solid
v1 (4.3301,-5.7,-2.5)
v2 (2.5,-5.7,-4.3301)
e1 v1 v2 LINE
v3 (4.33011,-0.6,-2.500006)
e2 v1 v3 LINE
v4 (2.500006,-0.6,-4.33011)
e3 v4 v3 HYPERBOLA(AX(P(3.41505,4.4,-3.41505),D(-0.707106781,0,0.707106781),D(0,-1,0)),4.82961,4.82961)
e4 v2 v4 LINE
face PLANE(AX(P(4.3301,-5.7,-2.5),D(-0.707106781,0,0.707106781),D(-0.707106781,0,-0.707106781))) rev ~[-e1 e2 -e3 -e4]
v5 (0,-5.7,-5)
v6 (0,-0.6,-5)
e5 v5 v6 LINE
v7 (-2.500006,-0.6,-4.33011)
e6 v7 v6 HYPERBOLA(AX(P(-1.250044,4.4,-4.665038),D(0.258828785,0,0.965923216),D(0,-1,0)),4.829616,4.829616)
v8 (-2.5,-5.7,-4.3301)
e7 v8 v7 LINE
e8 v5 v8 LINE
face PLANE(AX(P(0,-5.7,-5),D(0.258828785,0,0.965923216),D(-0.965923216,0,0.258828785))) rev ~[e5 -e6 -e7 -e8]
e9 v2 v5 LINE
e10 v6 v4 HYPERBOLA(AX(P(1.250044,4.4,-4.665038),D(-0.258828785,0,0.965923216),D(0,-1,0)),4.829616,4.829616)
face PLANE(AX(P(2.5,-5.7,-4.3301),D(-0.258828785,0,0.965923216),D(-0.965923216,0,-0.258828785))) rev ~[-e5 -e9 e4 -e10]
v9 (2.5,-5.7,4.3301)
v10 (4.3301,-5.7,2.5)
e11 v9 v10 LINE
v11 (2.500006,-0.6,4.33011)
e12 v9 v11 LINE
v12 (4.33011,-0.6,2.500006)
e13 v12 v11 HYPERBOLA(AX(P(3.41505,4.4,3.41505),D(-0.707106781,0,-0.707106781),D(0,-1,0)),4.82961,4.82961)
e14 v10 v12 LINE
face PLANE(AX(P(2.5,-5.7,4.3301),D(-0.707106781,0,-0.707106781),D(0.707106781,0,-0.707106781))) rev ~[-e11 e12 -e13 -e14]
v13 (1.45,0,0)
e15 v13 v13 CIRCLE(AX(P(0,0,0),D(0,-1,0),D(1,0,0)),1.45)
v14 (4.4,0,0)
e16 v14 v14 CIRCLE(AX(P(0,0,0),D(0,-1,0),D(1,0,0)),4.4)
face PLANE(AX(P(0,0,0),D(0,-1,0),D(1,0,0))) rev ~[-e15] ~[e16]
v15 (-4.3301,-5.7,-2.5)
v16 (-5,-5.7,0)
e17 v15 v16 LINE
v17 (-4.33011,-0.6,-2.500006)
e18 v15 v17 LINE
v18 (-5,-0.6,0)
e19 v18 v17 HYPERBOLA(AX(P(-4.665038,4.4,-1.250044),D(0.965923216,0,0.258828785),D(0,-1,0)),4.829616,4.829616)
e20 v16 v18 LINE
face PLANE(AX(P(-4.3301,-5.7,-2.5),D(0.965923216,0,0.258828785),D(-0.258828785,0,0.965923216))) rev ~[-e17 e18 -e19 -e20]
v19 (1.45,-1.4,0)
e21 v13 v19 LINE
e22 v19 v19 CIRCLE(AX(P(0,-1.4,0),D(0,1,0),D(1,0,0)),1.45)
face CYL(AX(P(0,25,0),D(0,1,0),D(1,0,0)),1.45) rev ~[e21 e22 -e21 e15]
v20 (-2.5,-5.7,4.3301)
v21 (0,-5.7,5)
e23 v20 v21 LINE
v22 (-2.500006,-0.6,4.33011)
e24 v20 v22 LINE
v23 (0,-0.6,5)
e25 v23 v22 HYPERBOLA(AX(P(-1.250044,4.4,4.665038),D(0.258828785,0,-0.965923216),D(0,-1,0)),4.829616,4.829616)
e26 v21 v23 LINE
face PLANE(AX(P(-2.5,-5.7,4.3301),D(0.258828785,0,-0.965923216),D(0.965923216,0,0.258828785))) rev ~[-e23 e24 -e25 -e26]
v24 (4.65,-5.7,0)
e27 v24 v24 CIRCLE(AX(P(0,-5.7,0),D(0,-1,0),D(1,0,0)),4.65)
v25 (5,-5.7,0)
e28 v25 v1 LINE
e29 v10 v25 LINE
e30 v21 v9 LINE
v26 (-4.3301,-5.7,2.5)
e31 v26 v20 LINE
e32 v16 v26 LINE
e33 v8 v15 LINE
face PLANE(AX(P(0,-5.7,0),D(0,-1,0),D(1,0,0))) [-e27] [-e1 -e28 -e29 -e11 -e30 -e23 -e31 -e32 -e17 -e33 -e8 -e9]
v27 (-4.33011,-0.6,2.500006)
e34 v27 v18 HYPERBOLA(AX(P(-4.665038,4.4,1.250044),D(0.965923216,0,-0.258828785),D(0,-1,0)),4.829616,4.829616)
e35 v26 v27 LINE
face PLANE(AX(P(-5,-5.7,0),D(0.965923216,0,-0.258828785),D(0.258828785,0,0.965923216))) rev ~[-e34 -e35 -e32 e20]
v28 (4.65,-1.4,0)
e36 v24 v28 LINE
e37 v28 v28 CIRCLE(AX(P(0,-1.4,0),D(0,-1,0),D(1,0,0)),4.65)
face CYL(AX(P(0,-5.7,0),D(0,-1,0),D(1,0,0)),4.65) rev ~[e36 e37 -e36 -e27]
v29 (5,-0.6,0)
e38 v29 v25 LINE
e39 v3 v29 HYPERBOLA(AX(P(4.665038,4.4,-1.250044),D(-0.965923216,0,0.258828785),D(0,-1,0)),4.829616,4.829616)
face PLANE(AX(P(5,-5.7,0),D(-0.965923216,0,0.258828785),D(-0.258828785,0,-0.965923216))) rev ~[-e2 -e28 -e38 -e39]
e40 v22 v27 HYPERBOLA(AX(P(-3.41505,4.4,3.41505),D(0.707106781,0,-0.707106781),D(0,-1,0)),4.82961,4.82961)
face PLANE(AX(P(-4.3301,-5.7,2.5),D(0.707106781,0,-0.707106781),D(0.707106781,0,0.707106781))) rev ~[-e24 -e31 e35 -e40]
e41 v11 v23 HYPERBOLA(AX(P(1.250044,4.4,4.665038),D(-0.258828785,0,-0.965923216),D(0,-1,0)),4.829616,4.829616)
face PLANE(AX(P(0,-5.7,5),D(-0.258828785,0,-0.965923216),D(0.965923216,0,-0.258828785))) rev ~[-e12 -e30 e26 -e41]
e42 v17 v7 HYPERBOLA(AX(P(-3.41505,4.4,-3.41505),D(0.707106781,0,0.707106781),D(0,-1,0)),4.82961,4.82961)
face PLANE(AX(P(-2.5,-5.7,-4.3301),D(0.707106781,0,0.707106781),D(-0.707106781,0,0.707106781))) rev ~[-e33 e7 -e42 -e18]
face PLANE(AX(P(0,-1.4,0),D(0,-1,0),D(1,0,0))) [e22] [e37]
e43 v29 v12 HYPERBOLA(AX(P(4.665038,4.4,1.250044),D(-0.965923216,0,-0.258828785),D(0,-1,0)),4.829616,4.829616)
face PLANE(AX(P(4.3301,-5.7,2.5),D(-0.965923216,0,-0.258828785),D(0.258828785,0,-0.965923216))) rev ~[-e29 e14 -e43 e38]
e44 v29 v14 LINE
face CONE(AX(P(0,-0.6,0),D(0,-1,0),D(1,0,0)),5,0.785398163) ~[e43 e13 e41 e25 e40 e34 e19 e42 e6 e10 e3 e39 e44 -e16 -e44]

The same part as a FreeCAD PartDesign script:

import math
import FreeCAD as App
import Part
import Sketcher


def edges_at(feature, points):
    """Names of the edges that pass closest to the given points."""
    edges = feature.Shape.Edges
    near = lambda p: min(range(len(edges)), key=lambda i: edges[i].distToShape(Part.Vertex(*p))[0])
    return sorted({f"Edge{near(p) + 1}" for p in points})

doc = App.newDocument("Part")
body = doc.addObject("PartDesign::Body", "Body")

# Sketch on XZ plane
sketch1 = body.newObject("Sketcher::SketchObject", "Sketch")
sketch1.AttachmentSupport = (doc.getObject("XZ_Plane"), [""])
sketch1.MapMode = "FlatFace"
sketch1.addGeometry(Part.Circle(App.Vector(0, 0, 0), App.Vector(0, 0, 1), 1.45), False)
sketch1.addConstraint([
    Sketcher.Constraint("Coincident", 0, 3, -1, 1),
    Sketcher.Constraint("Diameter", 0, 2.9),
])
pad1 = body.newObject("PartDesign::Pad", "Pad")
pad1.Profile = sketch1
pad1.Length = 25
pad1.Reversed = True

# Sketch on XZ plane
sketch2 = body.newObject("Sketcher::SketchObject", "Sketch001")
sketch2.AttachmentSupport = (doc.getObject("XZ_Plane"), [""])
sketch2.MapMode = "FlatFace"
sketch2.addGeometry(Part.Circle(App.Vector(0, 0, 0), App.Vector(0, 0, 1), 5), False)
sketch2.addConstraint([
    Sketcher.Constraint("Coincident", 0, 3, -1, 1),
    Sketcher.Constraint("Diameter", 0, 10.0),
])
pad2 = body.newObject("PartDesign::Pad", "Pad001")
pad2.Profile = sketch2
pad2.Length = 5.7
doc.recompute()

chamfer = body.newObject("PartDesign::Chamfer", "Chamfer")
chamfer.Base = (pad2, edges_at(pad2, [(-5, 0, 0)]))
chamfer.Size = 0.6

# Sketch on XZ plane
sketch3 = body.newObject("Sketcher::SketchObject", "Sketch002")
sketch3.AttachmentSupport = (doc.getObject("XZ_Plane"), [""])
sketch3.MapMode = "FlatFace"
sketch3.AttachmentOffset = App.Placement(App.Vector(0, 0, 5.7), App.Rotation())
sketch3.addGeometry([
    Part.ArcOfCircle(Part.Circle(App.Vector(0, 0, 0), App.Vector(0, 0, 1), 5), math.radians(-59.999845), math.radians(-30.000155)),  # 0
    Part.LineSegment(App.Vector(2.5, -4.3301, 0), App.Vector(4.3301, -2.5, 0)),  # 1
    Part.LineSegment(App.Vector(5, 0, 0), App.Vector(4.3301, -2.5, 0)),  # 2
    Part.ArcOfCircle(Part.Circle(App.Vector(0, 0, 0), App.Vector(0, 0, 1), 5), math.radians(-30.000155), math.radians(0)),  # 3
    Part.ArcOfCircle(Part.Circle(App.Vector(0, 0, 0), App.Vector(0, 0, 1), 5), math.radians(-90), math.radians(-59.999845)),  # 4
    Part.LineSegment(App.Vector(0, -5, 0), App.Vector(2.5, -4.3301, 0)),  # 5
    Part.LineSegment(App.Vector(4.3301, 2.5, 0), App.Vector(5, 0, 0)),  # 6
    Part.ArcOfCircle(Part.Circle(App.Vector(0, 0, 0), App.Vector(0, 0, 1), 5), math.radians(0), math.radians(30.000155)),  # 7
    Part.ArcOfCircle(Part.Circle(App.Vector(0, 0, 0), App.Vector(0, 0, 1), 5), math.radians(-120.000155), math.radians(-90)),  # 8
    Part.LineSegment(App.Vector(0, -5, 0), App.Vector(-2.5, -4.3301, 0)),  # 9
    Part.LineSegment(App.Vector(2.5, 4.3301, 0), App.Vector(4.3301, 2.5, 0)),  # 10
    Part.ArcOfCircle(Part.Circle(App.Vector(0, 0, 0), App.Vector(0, 0, 1), 5), math.radians(30.000155), math.radians(59.999845)),  # 11
    Part.ArcOfCircle(Part.Circle(App.Vector(0, 0, 0), App.Vector(0, 0, 1), 5), math.radians(-149.999845), math.radians(-120.000155)),  # 12
    Part.LineSegment(App.Vector(-4.3301, -2.5, 0), App.Vector(-2.5, -4.3301, 0)),  # 13
    Part.LineSegment(App.Vector(0, 5, 0), App.Vector(2.5, 4.3301, 0)),  # 14
    Part.ArcOfCircle(Part.Circle(App.Vector(0, 0, 0), App.Vector(0, 0, 1), 5), math.radians(59.999845), math.radians(90)),  # 15
    Part.ArcOfCircle(Part.Circle(App.Vector(0, 0, 0), App.Vector(0, 0, 1), 5), math.radians(180), math.radians(210.000155)),  # 16
    Part.LineSegment(App.Vector(-5, 0, 0), App.Vector(-4.3301, -2.5, 0)),  # 17
    Part.LineSegment(App.Vector(-2.5, 4.3301, 0), App.Vector(0, 5, 0)),  # 18
    Part.ArcOfCircle(Part.Circle(App.Vector(0, 0, 0), App.Vector(0, 0, 1), 5), math.radians(90), math.radians(120.000155)),  # 19
    Part.ArcOfCircle(Part.Circle(App.Vector(0, 0, 0), App.Vector(0, 0, 1), 5), math.radians(149.999845), math.radians(180)),  # 20
    Part.LineSegment(App.Vector(-5, 0, 0), App.Vector(-4.3301, 2.5, 0)),  # 21
    Part.LineSegment(App.Vector(-4.3301, 2.5, 0), App.Vector(-2.5, 4.3301, 0)),  # 22
    Part.ArcOfCircle(Part.Circle(App.Vector(0, 0, 0), App.Vector(0, 0, 1), 5), math.radians(120.000155), math.radians(149.999845)),  # 23
], False)
sketch3.addConstraint([
    Sketcher.Constraint("Coincident", 0, 1, 1, 1),
    Sketcher.Constraint("Coincident", 1, 2, 0, 2),
    Sketcher.Constraint("Coincident", 2, 1, 3, 2),
    Sketcher.Constraint("Coincident", 3, 1, 2, 2),
    Sketcher.Constraint("Coincident", 4, 1, 5, 1),
    Sketcher.Constraint("Coincident", 5, 2, 4, 2),
    Sketcher.Constraint("Coincident", 6, 1, 7, 2),
    Sketcher.Constraint("Coincident", 7, 1, 6, 2),
    Sketcher.Constraint("Coincident", 8, 1, 9, 2),
    Sketcher.Constraint("Coincident", 9, 1, 8, 2),
    Sketcher.Constraint("Coincident", 10, 1, 11, 2),
    Sketcher.Constraint("Coincident", 11, 1, 10, 2),
    Sketcher.Constraint("Coincident", 12, 1, 13, 1),
    Sketcher.Constraint("Coincident", 13, 2, 12, 2),
    Sketcher.Constraint("Coincident", 14, 1, 15, 2),
    Sketcher.Constraint("Coincident", 15, 1, 14, 2),
    Sketcher.Constraint("Coincident", 16, 1, 17, 1),
    Sketcher.Constraint("Coincident", 17, 2, 16, 2),
    Sketcher.Constraint("Coincident", 18, 1, 19, 2),
    Sketcher.Constraint("Coincident", 19, 1, 18, 2),
    Sketcher.Constraint("Coincident", 20, 1, 21, 2),
    Sketcher.Constraint("Coincident", 21, 1, 20, 2),
    Sketcher.Constraint("Coincident", 22, 1, 23, 2),
    Sketcher.Constraint("Coincident", 23, 1, 22, 2),
    Sketcher.Constraint("Coincident", 0, 3, -1, 1),
    Sketcher.Constraint("Coincident", 3, 3, -1, 1),
    Sketcher.Constraint("Coincident", 4, 3, -1, 1),
    Sketcher.Constraint("Coincident", 7, 3, -1, 1),
    Sketcher.Constraint("Coincident", 8, 3, -1, 1),
    Sketcher.Constraint("Coincident", 11, 3, -1, 1),
    Sketcher.Constraint("Coincident", 12, 3, -1, 1),
    Sketcher.Constraint("Coincident", 15, 3, -1, 1),
    Sketcher.Constraint("Coincident", 16, 3, -1, 1),
    Sketcher.Constraint("Coincident", 19, 3, -1, 1),
    Sketcher.Constraint("Coincident", 20, 3, -1, 1),
    Sketcher.Constraint("Coincident", 23, 3, -1, 1),
    Sketcher.Constraint("Coincident", 3, 1, 1, 2),
    Sketcher.Constraint("Coincident", 5, 2, 0, 1),
    Sketcher.Constraint("Coincident", 7, 1, 2, 1),
    Sketcher.Constraint("Coincident", 9, 1, 4, 1),
    Sketcher.Constraint("Coincident", 11, 1, 6, 1),
    Sketcher.Constraint("Coincident", 13, 2, 8, 1),
    Sketcher.Constraint("Coincident", 15, 1, 10, 1),
    Sketcher.Constraint("Coincident", 17, 2, 12, 1),
    Sketcher.Constraint("Coincident", 19, 1, 14, 1),
    Sketcher.Constraint("Coincident", 21, 1, 16, 1),
    Sketcher.Constraint("Coincident", 22, 1, 20, 1),
    Sketcher.Constraint("PointOnObject", 2, 1, -1),
    Sketcher.Constraint("PointOnObject", 4, 1, -2),
    Sketcher.Constraint("PointOnObject", 14, 1, -2),
    Sketcher.Constraint("PointOnObject", 16, 1, -1),
    Sketcher.Constraint("Perpendicular", 5, 6),
    Sketcher.Constraint("Perpendicular", 2, 9),
    Sketcher.Constraint("Perpendicular", 1, 10),
    Sketcher.Constraint("Parallel", 10, 13),
    Sketcher.Constraint("Perpendicular", 17, 18),
    Sketcher.Constraint("Perpendicular", 14, 21),
    Sketcher.Constraint("Perpendicular", 13, 22),
    Sketcher.Constraint("Horizontal", 5, 2, 8, 1),
    Sketcher.Constraint("Equal", 1, 2),
    Sketcher.Constraint("Radius", 0, 5.0),
])
pocket1 = body.newObject("PartDesign::Pocket", "Pocket")
pocket1.Profile = sketch3
pocket1.Length = 6

# Sketch on XZ plane
sketch4 = body.newObject("Sketcher::SketchObject", "Sketch003")
sketch4.AttachmentSupport = (doc.getObject("XZ_Plane"), [""])
sketch4.MapMode = "FlatFace"
sketch4.AttachmentOffset = App.Placement(App.Vector(0, 0, -25), App.Rotation())
sketch4.addGeometry(Part.Circle(App.Vector(0, 0, 0), App.Vector(0, 0, 1), 1.45), False)
sketch4.addConstraint([
    Sketcher.Constraint("Coincident", 0, 3, -1, 1),
    Sketcher.Constraint("Diameter", 0, 2.9),
])
pocket2 = body.newObject("PartDesign::Pocket", "Pocket001")
pocket2.Profile = sketch4
pocket2.Length = 29
pocket2.Reversed = True

# Sketch on XZ plane
sketch5 = body.newObject("Sketcher::SketchObject", "Sketch004")
sketch5.AttachmentSupport = (doc.getObject("XZ_Plane"), [""])
sketch5.MapMode = "FlatFace"
sketch5.AttachmentOffset = App.Placement(App.Vector(0, 0, 5.7), App.Rotation())
sketch5.addGeometry(Part.Circle(App.Vector(0, 0, 0), App.Vector(0, 0, 1), 4.65), False)
sketch5.addConstraint([
    Sketcher.Constraint("Coincident", 0, 3, -1, 1),
    Sketcher.Constraint("Diameter", 0, 9.3),
])
pocket3 = body.newObject("PartDesign::Pocket", "Pocket002")
pocket3.Profile = sketch5
pocket3.Length = 4.3

doc.recompute()
